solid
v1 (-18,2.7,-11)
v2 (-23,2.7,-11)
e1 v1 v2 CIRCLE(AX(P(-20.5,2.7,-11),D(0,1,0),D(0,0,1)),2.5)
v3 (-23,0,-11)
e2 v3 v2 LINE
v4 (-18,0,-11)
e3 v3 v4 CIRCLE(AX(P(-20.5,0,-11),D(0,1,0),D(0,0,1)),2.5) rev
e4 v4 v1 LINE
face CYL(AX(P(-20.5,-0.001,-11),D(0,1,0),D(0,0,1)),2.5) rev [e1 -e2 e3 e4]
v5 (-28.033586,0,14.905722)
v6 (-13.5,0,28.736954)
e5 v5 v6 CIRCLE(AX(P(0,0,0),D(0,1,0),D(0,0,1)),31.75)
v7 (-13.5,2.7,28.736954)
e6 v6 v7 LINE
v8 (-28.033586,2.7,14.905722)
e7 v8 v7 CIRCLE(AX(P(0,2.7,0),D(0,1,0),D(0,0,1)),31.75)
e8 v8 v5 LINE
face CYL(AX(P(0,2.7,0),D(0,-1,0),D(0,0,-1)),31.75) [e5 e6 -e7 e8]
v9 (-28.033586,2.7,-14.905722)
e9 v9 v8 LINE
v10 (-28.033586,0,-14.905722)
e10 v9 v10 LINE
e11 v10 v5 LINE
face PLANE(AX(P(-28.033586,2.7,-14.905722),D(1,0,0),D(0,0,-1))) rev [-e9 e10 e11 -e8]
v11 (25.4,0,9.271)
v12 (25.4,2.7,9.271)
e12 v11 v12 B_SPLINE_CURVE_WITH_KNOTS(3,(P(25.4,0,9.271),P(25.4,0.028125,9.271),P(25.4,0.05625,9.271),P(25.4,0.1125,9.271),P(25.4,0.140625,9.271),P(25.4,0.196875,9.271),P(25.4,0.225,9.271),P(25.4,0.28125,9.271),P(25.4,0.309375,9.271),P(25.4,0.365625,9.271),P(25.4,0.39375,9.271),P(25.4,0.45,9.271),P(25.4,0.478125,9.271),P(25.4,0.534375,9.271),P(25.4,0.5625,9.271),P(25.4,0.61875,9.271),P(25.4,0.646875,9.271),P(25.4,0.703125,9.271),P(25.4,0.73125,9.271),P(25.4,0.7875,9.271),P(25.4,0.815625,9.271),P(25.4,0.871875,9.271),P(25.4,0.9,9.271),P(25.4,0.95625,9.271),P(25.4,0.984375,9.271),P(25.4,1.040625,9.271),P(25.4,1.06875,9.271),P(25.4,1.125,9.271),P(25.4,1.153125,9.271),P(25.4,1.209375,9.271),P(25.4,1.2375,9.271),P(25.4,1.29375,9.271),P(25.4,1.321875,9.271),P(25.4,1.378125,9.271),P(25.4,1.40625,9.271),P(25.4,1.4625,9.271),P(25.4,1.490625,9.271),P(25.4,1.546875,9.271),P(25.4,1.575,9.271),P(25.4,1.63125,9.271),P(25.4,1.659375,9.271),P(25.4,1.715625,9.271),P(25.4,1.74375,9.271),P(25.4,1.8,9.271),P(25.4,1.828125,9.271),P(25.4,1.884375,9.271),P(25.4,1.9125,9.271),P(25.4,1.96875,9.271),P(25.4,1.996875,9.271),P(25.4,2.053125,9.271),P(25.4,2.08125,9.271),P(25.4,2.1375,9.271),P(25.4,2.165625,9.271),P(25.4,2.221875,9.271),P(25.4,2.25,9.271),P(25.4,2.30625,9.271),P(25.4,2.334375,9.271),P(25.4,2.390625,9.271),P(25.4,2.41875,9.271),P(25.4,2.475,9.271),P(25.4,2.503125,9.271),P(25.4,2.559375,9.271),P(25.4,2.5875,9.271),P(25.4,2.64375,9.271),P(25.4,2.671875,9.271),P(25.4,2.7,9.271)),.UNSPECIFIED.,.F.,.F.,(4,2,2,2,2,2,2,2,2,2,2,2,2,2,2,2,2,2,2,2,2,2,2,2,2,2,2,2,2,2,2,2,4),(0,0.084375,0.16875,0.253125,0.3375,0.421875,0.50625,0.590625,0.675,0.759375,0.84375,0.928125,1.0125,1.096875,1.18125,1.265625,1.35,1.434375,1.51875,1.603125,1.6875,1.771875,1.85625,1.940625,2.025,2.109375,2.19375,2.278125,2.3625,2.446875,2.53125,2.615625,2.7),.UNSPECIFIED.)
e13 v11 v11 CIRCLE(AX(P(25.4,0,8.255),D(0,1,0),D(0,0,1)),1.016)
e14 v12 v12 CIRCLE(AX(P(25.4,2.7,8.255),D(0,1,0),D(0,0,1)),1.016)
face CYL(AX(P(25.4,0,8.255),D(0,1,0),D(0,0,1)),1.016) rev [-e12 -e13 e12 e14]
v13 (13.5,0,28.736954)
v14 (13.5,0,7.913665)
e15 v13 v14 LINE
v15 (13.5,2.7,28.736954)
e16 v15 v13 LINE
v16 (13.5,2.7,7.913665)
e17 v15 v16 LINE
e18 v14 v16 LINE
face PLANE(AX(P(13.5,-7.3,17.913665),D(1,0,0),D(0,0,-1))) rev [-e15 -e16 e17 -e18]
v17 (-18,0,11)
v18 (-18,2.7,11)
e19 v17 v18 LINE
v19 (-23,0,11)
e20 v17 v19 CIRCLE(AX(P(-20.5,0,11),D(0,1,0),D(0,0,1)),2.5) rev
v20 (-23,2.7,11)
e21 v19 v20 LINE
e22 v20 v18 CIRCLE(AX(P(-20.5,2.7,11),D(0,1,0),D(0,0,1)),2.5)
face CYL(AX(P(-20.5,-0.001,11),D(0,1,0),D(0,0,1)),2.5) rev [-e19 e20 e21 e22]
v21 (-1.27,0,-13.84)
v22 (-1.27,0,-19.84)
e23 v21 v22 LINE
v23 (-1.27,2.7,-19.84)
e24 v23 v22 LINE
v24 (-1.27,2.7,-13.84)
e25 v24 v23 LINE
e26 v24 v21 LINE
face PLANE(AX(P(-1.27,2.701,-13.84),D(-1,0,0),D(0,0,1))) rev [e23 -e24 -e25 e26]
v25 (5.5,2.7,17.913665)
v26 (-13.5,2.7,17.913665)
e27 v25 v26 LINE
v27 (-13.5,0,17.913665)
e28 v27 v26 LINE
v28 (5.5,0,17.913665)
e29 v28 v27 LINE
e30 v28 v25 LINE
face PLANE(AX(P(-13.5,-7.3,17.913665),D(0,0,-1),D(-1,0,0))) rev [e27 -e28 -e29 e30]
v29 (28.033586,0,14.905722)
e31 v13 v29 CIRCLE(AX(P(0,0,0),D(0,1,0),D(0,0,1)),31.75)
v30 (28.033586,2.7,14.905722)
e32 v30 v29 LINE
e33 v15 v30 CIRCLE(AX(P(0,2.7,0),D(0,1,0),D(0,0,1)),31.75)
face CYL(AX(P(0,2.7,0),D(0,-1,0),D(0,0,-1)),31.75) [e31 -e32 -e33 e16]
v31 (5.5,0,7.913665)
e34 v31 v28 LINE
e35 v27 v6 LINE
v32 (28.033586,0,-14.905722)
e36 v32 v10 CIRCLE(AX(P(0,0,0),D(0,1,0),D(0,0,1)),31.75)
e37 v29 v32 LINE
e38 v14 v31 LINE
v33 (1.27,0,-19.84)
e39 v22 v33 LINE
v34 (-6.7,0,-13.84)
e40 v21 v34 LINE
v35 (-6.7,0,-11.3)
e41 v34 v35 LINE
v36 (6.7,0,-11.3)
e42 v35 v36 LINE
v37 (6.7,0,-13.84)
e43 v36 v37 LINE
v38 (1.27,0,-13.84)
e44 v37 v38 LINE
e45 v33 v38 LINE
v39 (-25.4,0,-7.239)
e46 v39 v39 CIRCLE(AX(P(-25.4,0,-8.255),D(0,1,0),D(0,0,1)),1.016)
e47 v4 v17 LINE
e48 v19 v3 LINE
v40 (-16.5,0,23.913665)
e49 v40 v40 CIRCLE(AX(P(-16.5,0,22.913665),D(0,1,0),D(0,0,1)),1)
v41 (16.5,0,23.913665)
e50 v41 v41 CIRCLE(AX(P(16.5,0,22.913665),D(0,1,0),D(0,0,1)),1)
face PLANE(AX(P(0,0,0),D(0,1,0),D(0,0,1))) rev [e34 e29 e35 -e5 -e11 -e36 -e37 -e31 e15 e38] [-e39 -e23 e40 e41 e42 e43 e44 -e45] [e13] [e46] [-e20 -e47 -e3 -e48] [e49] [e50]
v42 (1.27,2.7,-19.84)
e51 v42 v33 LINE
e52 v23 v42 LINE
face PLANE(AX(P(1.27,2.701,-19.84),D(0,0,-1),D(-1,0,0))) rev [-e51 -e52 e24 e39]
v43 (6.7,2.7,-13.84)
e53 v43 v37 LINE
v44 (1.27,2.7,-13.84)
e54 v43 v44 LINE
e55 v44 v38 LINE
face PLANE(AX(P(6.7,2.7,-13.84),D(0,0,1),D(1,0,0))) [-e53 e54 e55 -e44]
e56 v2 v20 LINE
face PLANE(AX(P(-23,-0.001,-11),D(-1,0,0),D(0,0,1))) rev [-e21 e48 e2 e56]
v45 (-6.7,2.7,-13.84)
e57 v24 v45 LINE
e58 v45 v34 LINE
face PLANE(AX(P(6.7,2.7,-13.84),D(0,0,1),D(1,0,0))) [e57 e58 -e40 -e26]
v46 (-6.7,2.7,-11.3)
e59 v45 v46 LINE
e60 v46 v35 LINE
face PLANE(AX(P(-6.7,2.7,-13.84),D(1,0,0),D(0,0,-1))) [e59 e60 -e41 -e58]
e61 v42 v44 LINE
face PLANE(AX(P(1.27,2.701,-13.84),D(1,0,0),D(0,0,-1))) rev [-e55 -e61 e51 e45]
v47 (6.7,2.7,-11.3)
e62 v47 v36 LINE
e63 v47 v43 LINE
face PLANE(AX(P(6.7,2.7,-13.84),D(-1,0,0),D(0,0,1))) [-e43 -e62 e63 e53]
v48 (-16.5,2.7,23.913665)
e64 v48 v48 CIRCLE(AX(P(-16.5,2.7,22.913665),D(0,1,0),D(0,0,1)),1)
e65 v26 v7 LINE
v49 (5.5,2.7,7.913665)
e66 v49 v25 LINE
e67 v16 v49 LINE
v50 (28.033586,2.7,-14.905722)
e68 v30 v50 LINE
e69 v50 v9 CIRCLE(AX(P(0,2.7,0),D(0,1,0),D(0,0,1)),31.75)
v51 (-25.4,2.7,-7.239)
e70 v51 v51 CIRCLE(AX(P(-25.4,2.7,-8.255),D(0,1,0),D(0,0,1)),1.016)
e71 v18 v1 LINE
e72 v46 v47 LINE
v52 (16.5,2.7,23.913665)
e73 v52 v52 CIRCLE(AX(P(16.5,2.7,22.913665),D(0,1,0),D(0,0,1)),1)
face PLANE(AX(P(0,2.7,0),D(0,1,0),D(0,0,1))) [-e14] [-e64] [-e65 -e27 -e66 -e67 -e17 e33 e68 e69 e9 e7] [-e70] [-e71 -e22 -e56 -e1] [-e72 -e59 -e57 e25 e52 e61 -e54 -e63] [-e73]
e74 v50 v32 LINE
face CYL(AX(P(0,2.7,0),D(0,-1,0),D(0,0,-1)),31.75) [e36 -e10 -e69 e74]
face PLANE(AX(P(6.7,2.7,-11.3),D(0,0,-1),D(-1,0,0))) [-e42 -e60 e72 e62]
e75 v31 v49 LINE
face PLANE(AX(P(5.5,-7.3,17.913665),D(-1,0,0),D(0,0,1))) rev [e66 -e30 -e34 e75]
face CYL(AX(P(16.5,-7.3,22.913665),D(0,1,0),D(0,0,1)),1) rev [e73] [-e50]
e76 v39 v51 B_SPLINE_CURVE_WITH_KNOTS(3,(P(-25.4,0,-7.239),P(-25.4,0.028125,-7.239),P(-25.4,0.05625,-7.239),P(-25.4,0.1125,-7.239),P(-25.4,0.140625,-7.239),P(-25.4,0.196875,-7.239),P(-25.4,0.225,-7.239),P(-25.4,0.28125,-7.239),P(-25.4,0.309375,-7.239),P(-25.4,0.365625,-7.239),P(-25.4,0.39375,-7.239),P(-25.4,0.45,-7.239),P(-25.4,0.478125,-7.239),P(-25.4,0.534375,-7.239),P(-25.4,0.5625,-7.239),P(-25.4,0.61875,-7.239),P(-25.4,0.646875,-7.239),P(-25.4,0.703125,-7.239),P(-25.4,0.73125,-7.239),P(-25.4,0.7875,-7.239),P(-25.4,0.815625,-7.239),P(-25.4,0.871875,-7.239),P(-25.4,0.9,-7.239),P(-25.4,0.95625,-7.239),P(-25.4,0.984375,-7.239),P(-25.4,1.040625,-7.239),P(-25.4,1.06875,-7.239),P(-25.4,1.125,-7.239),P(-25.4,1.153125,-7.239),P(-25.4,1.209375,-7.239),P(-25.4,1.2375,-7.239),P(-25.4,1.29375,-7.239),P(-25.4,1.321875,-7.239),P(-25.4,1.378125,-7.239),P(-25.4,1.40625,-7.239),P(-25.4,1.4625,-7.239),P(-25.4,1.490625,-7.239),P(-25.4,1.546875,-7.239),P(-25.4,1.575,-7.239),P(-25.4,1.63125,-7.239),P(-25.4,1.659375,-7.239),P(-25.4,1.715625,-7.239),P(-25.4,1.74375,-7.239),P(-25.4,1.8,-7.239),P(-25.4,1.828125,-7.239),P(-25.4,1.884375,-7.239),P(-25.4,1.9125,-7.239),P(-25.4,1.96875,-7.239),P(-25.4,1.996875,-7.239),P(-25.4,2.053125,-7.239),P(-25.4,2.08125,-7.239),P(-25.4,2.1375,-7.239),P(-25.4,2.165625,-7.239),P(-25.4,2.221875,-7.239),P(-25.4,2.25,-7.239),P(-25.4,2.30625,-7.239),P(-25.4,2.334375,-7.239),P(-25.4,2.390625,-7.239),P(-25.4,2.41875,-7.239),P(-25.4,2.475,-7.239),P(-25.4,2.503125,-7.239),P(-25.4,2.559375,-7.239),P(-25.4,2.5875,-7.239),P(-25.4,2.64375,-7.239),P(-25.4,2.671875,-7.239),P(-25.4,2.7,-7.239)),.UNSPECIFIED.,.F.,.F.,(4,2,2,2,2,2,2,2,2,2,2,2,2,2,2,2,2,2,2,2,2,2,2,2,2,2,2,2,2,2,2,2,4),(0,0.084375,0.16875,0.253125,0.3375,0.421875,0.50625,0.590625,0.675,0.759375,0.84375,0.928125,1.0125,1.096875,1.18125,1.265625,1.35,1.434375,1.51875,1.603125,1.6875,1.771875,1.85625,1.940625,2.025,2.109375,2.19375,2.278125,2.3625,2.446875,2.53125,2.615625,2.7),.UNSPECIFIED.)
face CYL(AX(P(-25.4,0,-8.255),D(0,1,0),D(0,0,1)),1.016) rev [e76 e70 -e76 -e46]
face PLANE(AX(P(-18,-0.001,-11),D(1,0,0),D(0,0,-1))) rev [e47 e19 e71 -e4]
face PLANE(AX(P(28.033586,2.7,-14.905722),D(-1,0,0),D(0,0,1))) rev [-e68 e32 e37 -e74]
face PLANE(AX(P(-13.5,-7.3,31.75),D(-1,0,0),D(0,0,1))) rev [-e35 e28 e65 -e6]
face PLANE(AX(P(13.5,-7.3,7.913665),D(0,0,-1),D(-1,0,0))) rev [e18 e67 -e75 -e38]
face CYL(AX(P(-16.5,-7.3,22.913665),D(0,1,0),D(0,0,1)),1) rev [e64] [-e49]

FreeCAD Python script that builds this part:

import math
import FreeCAD as App
import Part
import Sketcher

V = App.Vector
Q = App.Units.Quantity


def add_polygon(sketch, points):
    """Adds a closed chain of lines whose ends are joined by coincident constraints."""
    first, n = sketch.GeometryCount, len(points)
    for a, b in zip(points, points[1:] + points[:1]):
        sketch.addGeometry(Part.LineSegment(App.Vector(*a, 0), App.Vector(*b, 0)), False)
    for i in range(n):
        sketch.addConstraint(Sketcher.Constraint("Coincident", first + i, 2, first + (i + 1) % n, 1))

doc = App.newDocument("Part")
params = doc.addObject("Spreadsheet::Sheet", "Params")
for row, (alias, value) in enumerate([
    ("sketch1_radius", "31.75 mm"),
    ("sketch1_width", "13.4 mm"),
    ("sketch1_height", "2.54 mm"),
    ("pad1_length", "2.7 mm"),
    ("sketch2_radius", "2.5 mm"),
    ("sketch2_height", "22 mm"),
    ("sketch4_height", "6 mm"),
    ("sketch4_width", "2.54 mm"),
    ("sketch5_diameter", "2 mm"),
    ("sketch5_width", "27 mm"),
    ("sketch5_width2", "8 mm"),
    ("sketch5_height", "10 mm"),
    ("pocket4_length", "10 mm"),
], start=1):
    params.set(f"A{row}", alias)
    params.set(f"B{row}", "=" + value)
    params.setAlias(f"B{row}", alias)

body = doc.addObject("PartDesign::Body", "Body")

sketch1 = body.newObject("Sketcher::SketchObject", "Sketch")
sketch1.AttachmentSupport = (doc.getObject("XZ_Plane"), [""])
sketch1.MapMode = "FlatFace"
sketch1.addGeometry(Part.LineSegment(V(28.033586, 14.905722, 0), V(28.033586, -14.905722, 0)), False)
sketch1.addGeometry(Part.ArcOfCircle(Part.Circle(V(0, 0, 0), V(0, 0, 1), 31.75), math.radians(-152), math.radians(-28)), False)
sketch1.addGeometry(Part.LineSegment(V(-28.033586, -14.905722, 0), V(-28.033586, 14.905722, 0)), False)
sketch1.addGeometry(Part.ArcOfCircle(Part.Circle(V(0, 0, 0), V(0, 0, 1), 31.75), math.radians(28), math.radians(152)), False)
add_polygon(sketch1, [(-6.7, -11.3), (-6.7, -13.84), (6.7, -13.84), (6.7, -11.3)])
sketch1.addConstraint(Sketcher.Constraint("Coincident", 0, 2, 1, 2))
sketch1.addConstraint(Sketcher.Constraint("Coincident", 1, 1, 2, 1))
sketch1.addConstraint(Sketcher.Constraint("Coincident", 2, 2, 3, 2))
sketch1.addConstraint(Sketcher.Constraint("Coincident", 3, 1, 0, 1))
sketch1.addConstraint(Sketcher.Constraint("Vertical", 0))
sketch1.addConstraint(Sketcher.Constraint("Vertical", 2))
sketch1.addConstraint(Sketcher.Constraint("Vertical", 4))
sketch1.addConstraint(Sketcher.Constraint("Horizontal", 5))
sketch1.addConstraint(Sketcher.Constraint("Vertical", 6))
sketch1.addConstraint(Sketcher.Constraint("Horizontal", 7))
sketch1.addConstraint(Sketcher.Constraint("Coincident", 1, 3, -1, 1))
sketch1.addConstraint(Sketcher.Constraint("Coincident", 3, 3, -1, 1))
sketch1.addConstraint(Sketcher.Constraint("Equal", 1, 3))
sketch1.addConstraint(Sketcher.Constraint("Horizontal", 0, 2, 1, 1))
sketch1.addConstraint(Sketcher.Constraint("Radius", 1, Q("31.75 mm")))
sketch1.addConstraint(Sketcher.Constraint("DistanceX", 5, 1, 5, 2, Q("13.4 mm")))
sketch1.addConstraint(Sketcher.Constraint("DistanceY", 4, 2, 4, 1, Q("2.54 mm")))
sketch1.addConstraint(Sketcher.Constraint("DistanceX", 4, 2, -1, 1, Q("6.7 mm")))
sketch1.addConstraint(Sketcher.Constraint("DistanceY", 6, 2, -1, 1, Q("11.3 mm")))
sketch1.addConstraint(Sketcher.Constraint("DistanceY", 0, 2, 0, 1, Q("29.811444 mm")))
sketch1.setExpression("Constraints[18]", "Params.sketch1_radius")
sketch1.setExpression("Constraints[19]", "Params.sketch1_width")
sketch1.setExpression("Constraints[20]", "Params.sketch1_height")
pad1 = body.newObject("PartDesign::Pad", "Pad")
pad1.Profile = sketch1
pad1.setExpression("Length", "Params.pad1_length")
pad1.Reversed = True

sketch2 = body.newObject("Sketcher::SketchObject", "Sketch001")
sketch2.AttachmentSupport = (doc.getObject("XZ_Plane"), [""])
sketch2.MapMode = "FlatFace"
sketch2.AttachmentOffset = App.Placement(V(0, 0, -2.7), App.Rotation())
sketch2.addGeometry(Part.LineSegment(V(-18, 11, 0), V(-18, -11, 0)), False)
sketch2.addGeometry(Part.ArcOfCircle(Part.Circle(V(-20.5, -11, 0), V(0, 0, 1), 2.5), math.radians(180), math.radians(360)), False)
sketch2.addGeometry(Part.LineSegment(V(-23, -11, 0), V(-23, 11, 0)), False)
sketch2.addGeometry(Part.ArcOfCircle(Part.Circle(V(-20.5, 11, 0), V(0, 0, 1), 2.5), math.radians(0), math.radians(180)), False)
sketch2.addConstraint(Sketcher.Constraint("Tangent", 0, 2, 1, 2))
sketch2.addConstraint(Sketcher.Constraint("Tangent", 1, 1, 2, 1))
sketch2.addConstraint(Sketcher.Constraint("Tangent", 2, 2, 3, 2))
sketch2.addConstraint(Sketcher.Constraint("Tangent", 3, 1, 0, 1))
sketch2.addConstraint(Sketcher.Constraint("Vertical", 0))
sketch2.addConstraint(Sketcher.Constraint("Vertical", 2))
sketch2.addConstraint(Sketcher.Constraint("Radius", 1, Q("2.5 mm")))
sketch2.addConstraint(Sketcher.Constraint("DistanceY", 0, 2, 0, 1, Q("22 mm")))
sketch2.addConstraint(Sketcher.Constraint("DistanceY", 1, 3, -1, 1, Q("11 mm")))
sketch2.addConstraint(Sketcher.Constraint("DistanceX", 0, 2, -1, 1, Q("18 mm")))
sketch2.setExpression("Constraints[6]", "Params.sketch2_radius")
sketch2.setExpression("Constraints[7]", "Params.sketch2_height")
pocket1 = body.newObject("PartDesign::Pocket", "Pocket")
pocket1.Profile = sketch2
pocket1.Type = "UpToFirst"
pocket1.Reversed = True

sketch3 = body.newObject("Sketcher::SketchObject", "Sketch002")
sketch3.AttachmentSupport = (doc.getObject("XZ_Plane"), [""])
sketch3.MapMode = "FlatFace"
sketch3.AttachmentOffset = App.Placement(V(0, 0, -2.7), App.Rotation())
sketch3.addGeometry(Part.Circle(V(-25.4, -8.255, 0), V(0, 0, 1), 1.016), False)
sketch3.addGeometry(Part.Circle(V(25.4, 8.255, 0), V(0, 0, 1), 1.016), False)
sketch3.addConstraint(Sketcher.Constraint("Equal", 0, 1))
sketch3.addConstraint(Sketcher.Constraint("Symmetric", 0, 3, 1, 3, -1, 1))
sketch3.addConstraint(Sketcher.Constraint("Diameter", 0, Q("2.032 mm")))
sketch3.addConstraint(Sketcher.Constraint("DistanceX", 0, 3, -1, 1, Q("25.4 mm")))
sketch3.addConstraint(Sketcher.Constraint("DistanceY", 0, 3, 1, 3, Q("16.51 mm")))
pocket2 = body.newObject("PartDesign::Pocket", "Pocket001")
pocket2.Profile = sketch3
pocket2.Type = "ThroughAll"
pocket2.Reversed = True

sketch4 = body.newObject("Sketcher::SketchObject", "Sketch003")
sketch4.AttachmentSupport = (doc.getObject("XZ_Plane"), [""])
sketch4.MapMode = "FlatFace"
add_polygon(sketch4, [(-1.27, -13.84), (-1.27, -19.84), (1.27, -19.84), (1.27, -13.84)])
sketch4.addConstraint(Sketcher.Constraint("Vertical", 0))
sketch4.addConstraint(Sketcher.Constraint("Horizontal", 1))
sketch4.addConstraint(Sketcher.Constraint("Vertical", 2))
sketch4.addConstraint(Sketcher.Constraint("Horizontal", 3))
sketch4.addConstraint(Sketcher.Constraint("DistanceY", 0, 2, 0, 1, Q("6 mm")))
sketch4.addConstraint(Sketcher.Constraint("DistanceX", 1, 1, 1, 2, Q("2.54 mm")))
sketch4.addConstraint(Sketcher.Constraint("DistanceX", 0, 2, -1, 1, Q("1.27 mm")))
sketch4.addConstraint(Sketcher.Constraint("DistanceY", 0, 2, -1, 1, Q("19.84 mm")))
sketch4.setExpression("Constraints[8]", "Params.sketch4_height")
sketch4.setExpression("Constraints[9]", "Params.sketch4_width")
pocket3 = body.newObject("PartDesign::Pocket", "Pocket002")
pocket3.Profile = sketch4
pocket3.Type = "UpToFirst"

sketch5 = body.newObject("Sketcher::SketchObject", "Sketch004")
sketch5.AttachmentSupport = (doc.getObject("XZ_Plane"), [""])
sketch5.MapMode = "FlatFace"
sketch5.AttachmentOffset = App.Placement(V(0, 0, -2.7), App.Rotation())
sketch5.addGeometry(Part.Circle(V(16.5, 22.913665, 0), V(0, 0, 1), 1), False)
sketch5.addGeometry(Part.Circle(V(-16.5, 22.913665, 0), V(0, 0, 1), 1), False)
add_polygon(sketch5, [(-13.5, 31.75), (13.5, 31.75), (13.5, 7.913665), (5.5, 7.913665), (5.5, 17.913665), (-13.5, 17.913665)])
sketch5.addConstraint(Sketcher.Constraint("Horizontal", 2))
sketch5.addConstraint(Sketcher.Constraint("Vertical", 3))
sketch5.addConstraint(Sketcher.Constraint("Horizontal", 4))
sketch5.addConstraint(Sketcher.Constraint("Vertical", 5))
sketch5.addConstraint(Sketcher.Constraint("Horizontal", 6))
sketch5.addConstraint(Sketcher.Constraint("Vertical", 7))
sketch5.addConstraint(Sketcher.Constraint("Equal", 0, 1))
sketch5.addConstraint(Sketcher.Constraint("Symmetric", 0, 3, 1, 3, -2))
sketch5.addConstraint(Sketcher.Constraint("Diameter", 0, Q("2 mm")))
sketch5.addConstraint(Sketcher.Constraint("DistanceX", 2, 1, 2, 2, Q("27 mm")))
sketch5.addConstraint(Sketcher.Constraint("DistanceX", 4, 2, 4, 1, Q("8 mm")))
sketch5.addConstraint(Sketcher.Constraint("DistanceY", 5, 1, 5, 2, Q("10 mm")))
sketch5.addConstraint(Sketcher.Constraint("DistanceX", 1, 3, 0, 3, Q("33 mm")))
sketch5.addConstraint(Sketcher.Constraint("DistanceX", 2, 2, 0, 3, Q("3 mm")))
sketch5.addConstraint(Sketcher.Constraint("DistanceY", 3, 2, 0, 3, Q("15 mm")))
sketch5.addConstraint(Sketcher.Constraint("DistanceY", -1, 1, 2, 2, Q("31.75 mm")))
sketch5.addConstraint(Sketcher.Constraint("DistanceY", 3, 2, 3, 1, Q("23.836335 mm")))
sketch5.setExpression("Constraints[14]", "Params.sketch5_diameter")
sketch5.setExpression("Constraints[15]", "Params.sketch5_width")
sketch5.setExpression("Constraints[16]", "Params.sketch5_width2")
sketch5.setExpression("Constraints[17]", "Params.sketch5_height")
pocket4 = body.newObject("PartDesign::Pocket", "Pocket003")
pocket4.Profile = sketch5
pocket4.setExpression("Length", "Params.pocket4_length")
pocket4.Reversed = True

doc.recompute()
